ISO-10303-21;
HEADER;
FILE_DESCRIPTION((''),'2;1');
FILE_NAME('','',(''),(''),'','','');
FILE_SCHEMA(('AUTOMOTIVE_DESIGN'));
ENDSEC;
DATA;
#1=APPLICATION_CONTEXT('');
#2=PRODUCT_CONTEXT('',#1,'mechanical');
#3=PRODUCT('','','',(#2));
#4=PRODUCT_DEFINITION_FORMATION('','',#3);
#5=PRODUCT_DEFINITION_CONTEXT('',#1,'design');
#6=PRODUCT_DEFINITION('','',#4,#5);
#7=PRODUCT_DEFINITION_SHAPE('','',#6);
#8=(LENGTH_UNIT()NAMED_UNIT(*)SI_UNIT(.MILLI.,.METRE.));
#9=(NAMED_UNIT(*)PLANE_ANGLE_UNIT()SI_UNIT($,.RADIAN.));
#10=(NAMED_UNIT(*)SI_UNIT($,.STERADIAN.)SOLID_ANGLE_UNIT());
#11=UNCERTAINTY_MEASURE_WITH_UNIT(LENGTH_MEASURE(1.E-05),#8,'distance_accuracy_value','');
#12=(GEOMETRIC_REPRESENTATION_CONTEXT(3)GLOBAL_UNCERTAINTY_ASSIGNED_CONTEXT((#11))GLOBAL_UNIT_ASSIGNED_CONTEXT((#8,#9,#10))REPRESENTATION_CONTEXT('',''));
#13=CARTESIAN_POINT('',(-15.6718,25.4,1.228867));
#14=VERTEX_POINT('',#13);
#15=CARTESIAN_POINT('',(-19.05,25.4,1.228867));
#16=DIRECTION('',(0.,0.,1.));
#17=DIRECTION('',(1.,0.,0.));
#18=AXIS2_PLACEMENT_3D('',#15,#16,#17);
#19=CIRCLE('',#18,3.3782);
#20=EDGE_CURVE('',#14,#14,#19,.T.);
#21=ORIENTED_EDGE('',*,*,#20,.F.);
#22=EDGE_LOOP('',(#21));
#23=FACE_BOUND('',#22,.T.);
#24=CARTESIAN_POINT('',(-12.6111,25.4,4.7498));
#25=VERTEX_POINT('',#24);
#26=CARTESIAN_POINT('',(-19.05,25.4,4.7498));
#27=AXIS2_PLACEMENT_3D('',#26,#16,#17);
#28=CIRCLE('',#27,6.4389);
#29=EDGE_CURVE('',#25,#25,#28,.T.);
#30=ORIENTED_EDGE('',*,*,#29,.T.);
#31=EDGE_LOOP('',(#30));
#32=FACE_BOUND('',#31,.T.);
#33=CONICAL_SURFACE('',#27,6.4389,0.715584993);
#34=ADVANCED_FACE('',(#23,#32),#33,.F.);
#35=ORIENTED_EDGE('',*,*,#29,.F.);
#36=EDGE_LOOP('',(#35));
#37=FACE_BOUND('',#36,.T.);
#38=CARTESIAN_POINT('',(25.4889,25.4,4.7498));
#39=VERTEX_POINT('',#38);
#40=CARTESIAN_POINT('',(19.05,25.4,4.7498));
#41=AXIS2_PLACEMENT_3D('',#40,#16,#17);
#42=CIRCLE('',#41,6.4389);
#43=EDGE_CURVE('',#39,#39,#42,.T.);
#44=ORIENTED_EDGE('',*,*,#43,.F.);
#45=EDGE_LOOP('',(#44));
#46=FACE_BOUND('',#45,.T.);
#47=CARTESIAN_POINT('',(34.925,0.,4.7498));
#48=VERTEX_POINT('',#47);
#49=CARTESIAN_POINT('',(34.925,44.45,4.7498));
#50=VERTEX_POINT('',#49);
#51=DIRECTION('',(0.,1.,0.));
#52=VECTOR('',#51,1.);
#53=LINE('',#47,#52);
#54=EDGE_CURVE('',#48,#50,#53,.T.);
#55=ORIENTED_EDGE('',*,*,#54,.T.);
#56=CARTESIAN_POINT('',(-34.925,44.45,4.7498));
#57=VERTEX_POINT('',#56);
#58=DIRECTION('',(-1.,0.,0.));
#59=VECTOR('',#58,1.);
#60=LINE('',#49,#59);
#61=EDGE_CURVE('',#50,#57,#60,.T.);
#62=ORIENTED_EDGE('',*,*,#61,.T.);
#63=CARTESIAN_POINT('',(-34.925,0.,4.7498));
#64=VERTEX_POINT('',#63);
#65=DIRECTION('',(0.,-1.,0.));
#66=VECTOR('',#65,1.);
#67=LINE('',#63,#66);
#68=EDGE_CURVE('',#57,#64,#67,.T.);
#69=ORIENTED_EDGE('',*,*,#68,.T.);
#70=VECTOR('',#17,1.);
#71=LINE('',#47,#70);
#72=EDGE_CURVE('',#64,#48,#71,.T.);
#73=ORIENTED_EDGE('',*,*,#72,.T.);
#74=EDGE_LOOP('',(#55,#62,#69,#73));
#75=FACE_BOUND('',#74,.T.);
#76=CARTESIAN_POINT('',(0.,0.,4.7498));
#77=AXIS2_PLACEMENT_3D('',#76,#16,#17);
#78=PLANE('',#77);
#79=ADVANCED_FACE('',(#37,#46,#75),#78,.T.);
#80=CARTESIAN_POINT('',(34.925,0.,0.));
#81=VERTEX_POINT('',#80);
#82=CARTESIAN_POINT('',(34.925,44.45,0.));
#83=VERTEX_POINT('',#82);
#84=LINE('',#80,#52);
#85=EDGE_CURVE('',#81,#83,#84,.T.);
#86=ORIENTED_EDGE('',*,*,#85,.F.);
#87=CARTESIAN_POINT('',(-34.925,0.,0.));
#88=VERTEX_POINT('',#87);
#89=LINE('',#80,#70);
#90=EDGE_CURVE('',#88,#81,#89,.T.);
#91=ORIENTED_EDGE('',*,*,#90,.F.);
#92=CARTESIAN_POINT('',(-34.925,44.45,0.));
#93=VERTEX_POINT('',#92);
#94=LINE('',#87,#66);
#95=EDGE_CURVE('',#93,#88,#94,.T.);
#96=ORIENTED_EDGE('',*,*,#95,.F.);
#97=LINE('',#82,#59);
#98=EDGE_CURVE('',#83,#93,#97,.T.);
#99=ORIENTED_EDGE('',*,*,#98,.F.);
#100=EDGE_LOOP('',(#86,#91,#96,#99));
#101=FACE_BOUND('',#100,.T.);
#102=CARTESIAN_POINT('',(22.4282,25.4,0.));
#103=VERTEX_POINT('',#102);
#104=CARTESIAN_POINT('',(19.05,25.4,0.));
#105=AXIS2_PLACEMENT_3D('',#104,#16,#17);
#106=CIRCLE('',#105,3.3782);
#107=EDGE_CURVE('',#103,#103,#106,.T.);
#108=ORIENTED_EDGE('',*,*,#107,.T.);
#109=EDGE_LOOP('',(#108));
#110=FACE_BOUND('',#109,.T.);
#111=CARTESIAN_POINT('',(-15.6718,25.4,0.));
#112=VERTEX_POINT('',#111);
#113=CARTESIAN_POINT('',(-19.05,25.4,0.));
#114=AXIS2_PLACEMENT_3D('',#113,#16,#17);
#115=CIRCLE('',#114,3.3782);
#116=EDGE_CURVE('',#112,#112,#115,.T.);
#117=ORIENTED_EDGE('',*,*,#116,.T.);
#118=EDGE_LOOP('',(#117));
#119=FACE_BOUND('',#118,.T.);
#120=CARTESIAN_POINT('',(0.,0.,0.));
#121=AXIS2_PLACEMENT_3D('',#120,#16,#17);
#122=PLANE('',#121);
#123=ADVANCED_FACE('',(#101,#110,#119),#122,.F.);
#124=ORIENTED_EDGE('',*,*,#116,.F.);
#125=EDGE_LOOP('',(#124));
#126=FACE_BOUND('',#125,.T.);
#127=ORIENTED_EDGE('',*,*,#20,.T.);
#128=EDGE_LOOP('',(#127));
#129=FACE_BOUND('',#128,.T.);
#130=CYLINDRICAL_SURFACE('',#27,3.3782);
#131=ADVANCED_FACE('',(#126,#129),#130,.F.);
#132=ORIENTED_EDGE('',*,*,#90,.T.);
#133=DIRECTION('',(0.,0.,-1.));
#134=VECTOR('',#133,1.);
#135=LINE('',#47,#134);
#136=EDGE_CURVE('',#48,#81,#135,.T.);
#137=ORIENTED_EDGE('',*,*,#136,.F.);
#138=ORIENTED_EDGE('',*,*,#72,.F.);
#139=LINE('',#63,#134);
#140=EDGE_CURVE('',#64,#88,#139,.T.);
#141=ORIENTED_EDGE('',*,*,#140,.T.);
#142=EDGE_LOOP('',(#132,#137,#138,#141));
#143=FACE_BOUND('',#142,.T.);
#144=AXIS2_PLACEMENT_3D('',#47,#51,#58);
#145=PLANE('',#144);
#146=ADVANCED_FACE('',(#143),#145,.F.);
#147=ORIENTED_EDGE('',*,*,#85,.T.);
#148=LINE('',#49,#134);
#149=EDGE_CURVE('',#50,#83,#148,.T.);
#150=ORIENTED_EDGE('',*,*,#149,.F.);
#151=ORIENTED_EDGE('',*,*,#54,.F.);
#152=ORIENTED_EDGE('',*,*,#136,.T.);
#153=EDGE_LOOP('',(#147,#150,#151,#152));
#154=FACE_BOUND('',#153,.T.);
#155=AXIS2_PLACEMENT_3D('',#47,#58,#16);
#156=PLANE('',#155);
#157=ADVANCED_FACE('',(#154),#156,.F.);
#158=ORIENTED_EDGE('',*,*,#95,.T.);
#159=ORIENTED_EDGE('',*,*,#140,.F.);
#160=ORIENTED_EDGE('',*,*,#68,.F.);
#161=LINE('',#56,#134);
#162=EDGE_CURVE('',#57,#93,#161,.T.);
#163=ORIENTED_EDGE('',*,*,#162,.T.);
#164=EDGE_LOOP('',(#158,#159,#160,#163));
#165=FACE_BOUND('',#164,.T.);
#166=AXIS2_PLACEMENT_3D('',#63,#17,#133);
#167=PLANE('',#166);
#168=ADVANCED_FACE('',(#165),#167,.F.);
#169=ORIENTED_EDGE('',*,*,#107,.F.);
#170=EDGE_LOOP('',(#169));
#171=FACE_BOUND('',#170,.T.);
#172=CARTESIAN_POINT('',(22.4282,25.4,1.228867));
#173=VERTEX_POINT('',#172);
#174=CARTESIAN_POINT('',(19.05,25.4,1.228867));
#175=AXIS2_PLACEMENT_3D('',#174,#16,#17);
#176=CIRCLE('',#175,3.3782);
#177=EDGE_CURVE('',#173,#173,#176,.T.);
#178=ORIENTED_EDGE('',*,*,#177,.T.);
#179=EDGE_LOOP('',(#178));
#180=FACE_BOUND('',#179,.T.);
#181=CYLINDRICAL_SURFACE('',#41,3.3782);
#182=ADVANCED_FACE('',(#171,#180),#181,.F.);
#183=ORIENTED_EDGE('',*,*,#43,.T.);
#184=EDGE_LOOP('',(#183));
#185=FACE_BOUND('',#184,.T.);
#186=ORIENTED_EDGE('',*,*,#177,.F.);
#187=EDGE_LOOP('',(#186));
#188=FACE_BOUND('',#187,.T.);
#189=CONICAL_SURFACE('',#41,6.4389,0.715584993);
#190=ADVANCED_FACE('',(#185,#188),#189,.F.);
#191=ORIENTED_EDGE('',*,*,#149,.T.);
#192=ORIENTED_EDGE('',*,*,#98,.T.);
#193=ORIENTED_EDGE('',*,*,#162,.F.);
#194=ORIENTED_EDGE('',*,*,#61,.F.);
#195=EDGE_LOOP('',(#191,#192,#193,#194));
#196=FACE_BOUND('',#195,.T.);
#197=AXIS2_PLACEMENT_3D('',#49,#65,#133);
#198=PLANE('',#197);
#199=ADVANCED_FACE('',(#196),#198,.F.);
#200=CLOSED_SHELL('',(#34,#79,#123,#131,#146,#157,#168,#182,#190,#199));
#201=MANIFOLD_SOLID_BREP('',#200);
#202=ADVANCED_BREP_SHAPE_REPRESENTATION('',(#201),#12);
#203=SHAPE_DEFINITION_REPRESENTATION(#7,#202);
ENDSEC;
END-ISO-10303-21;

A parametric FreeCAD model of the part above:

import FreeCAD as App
import Part
import Sketcher
Q = App.Units.Quantity


def add_polygon(sketch, points):
    """Adds a closed chain of lines whose ends are joined by coincident constraints."""
    first, n = sketch.GeometryCount, len(points)
    for a, b in zip(points, points[1:] + points[:1]):
        sketch.addGeometry(Part.LineSegment(App.Vector(*a, 0), App.Vector(*b, 0)), False)
    for i in range(n):
        sketch.addConstraint(Sketcher.Constraint("Coincident", first + i, 2, first + (i + 1) % n, 1))

doc = App.newDocument("Part")
body = doc.addObject("PartDesign::Body", "Body")

sketch1 = body.newObject("Sketcher::SketchObject", "Sketch")
sketch1.AttachmentSupport = (doc.getObject("XY_Plane"), [""])
sketch1.MapMode = "FlatFace"
add_polygon(sketch1, [(-34.925, 44.45), (-34.925, 0), (34.925, 0), (34.925, 44.45)])
sketch1.addConstraint([
    Sketcher.Constraint("Vertical", 0),
    Sketcher.Constraint("Horizontal", 1),
    Sketcher.Constraint("Vertical", 2),
    Sketcher.Constraint("Horizontal", 3),
    Sketcher.Constraint("Symmetric", 0, 2, 1, 2, -1, 1),
    Sketcher.Constraint("DistanceX", 1, 1, 1, 2, Q("2.75 in")),
    Sketcher.Constraint("DistanceY", 0, 2, 0, 1, Q("1.75 in")),
])
pad1 = body.newObject("PartDesign::Pad", "Pad")
pad1.Profile = sketch1
pad1.Length = Q("0.187 in")

sketch2 = body.newObject("Sketcher::SketchObject", "Sketch001")
sketch2.AttachmentSupport = (doc.getObject("YZ_Plane"), [""])
sketch2.MapMode = "FlatFace"
sketch2.AttachmentOffset = App.Placement(App.Vector(0, 0, 0.75 * 25.4), App.Rotation())
add_polygon(sketch2, [(25.4, 0), (25.4, 4.7498), (18.9611, 4.7498), (22.0218, 1.228867), (22.0218, 0)])
sketch2.addGeometry(Part.LineSegment(App.Vector(25.4, 4.7498, 0), App.Vector(25.4, 0, 0)), True)
sketch2.addConstraint([
    Sketcher.Constraint("Vertical", 0),
    Sketcher.Constraint("Horizontal", 1),
    Sketcher.Constraint("Vertical", 3),
    Sketcher.Constraint("Horizontal", 4),
    Sketcher.Constraint("Vertical", 5),
    Sketcher.Constraint("Coincident", 5, 1, 0, 2),
    Sketcher.Constraint("PointOnObject", 3, 2, -1),
    Sketcher.Constraint("PointOnObject", 5, 2, -1),
    Sketcher.Constraint("DistanceX", -1, 1, 0, 2, Q("1 in")),
    Sketcher.Constraint("Angle", 2, Q("-49 deg")),
    Sketcher.Constraint("DistanceX", 4, 1, 4, 2, Q("0.133 in")),
    Sketcher.Constraint("DistanceY", 0, 1, 0, 2, Q("0.187 in")),
    Sketcher.Constraint("DistanceX", 1, 2, 1, 1, Q("0.2535 in")),
])
groove = body.newObject("PartDesign::Groove", "Groove")
groove.Profile = sketch2
groove.ReferenceAxis = (sketch2, ["Axis0"])
groove.Angle = 360
doc.recompute()

linearpattern = body.newObject("PartDesign::LinearPattern", "LinearPattern")
linearpattern.Originals = [groove]
linearpattern.Direction = (doc.getObject("X_Axis"), [""])
linearpattern.Mode = "offset"
linearpattern.Offset = Q("1.5 in")
linearpattern.Occurrences = 2
linearpattern.Reversed = True
body.Tip = linearpattern

doc.recompute()
